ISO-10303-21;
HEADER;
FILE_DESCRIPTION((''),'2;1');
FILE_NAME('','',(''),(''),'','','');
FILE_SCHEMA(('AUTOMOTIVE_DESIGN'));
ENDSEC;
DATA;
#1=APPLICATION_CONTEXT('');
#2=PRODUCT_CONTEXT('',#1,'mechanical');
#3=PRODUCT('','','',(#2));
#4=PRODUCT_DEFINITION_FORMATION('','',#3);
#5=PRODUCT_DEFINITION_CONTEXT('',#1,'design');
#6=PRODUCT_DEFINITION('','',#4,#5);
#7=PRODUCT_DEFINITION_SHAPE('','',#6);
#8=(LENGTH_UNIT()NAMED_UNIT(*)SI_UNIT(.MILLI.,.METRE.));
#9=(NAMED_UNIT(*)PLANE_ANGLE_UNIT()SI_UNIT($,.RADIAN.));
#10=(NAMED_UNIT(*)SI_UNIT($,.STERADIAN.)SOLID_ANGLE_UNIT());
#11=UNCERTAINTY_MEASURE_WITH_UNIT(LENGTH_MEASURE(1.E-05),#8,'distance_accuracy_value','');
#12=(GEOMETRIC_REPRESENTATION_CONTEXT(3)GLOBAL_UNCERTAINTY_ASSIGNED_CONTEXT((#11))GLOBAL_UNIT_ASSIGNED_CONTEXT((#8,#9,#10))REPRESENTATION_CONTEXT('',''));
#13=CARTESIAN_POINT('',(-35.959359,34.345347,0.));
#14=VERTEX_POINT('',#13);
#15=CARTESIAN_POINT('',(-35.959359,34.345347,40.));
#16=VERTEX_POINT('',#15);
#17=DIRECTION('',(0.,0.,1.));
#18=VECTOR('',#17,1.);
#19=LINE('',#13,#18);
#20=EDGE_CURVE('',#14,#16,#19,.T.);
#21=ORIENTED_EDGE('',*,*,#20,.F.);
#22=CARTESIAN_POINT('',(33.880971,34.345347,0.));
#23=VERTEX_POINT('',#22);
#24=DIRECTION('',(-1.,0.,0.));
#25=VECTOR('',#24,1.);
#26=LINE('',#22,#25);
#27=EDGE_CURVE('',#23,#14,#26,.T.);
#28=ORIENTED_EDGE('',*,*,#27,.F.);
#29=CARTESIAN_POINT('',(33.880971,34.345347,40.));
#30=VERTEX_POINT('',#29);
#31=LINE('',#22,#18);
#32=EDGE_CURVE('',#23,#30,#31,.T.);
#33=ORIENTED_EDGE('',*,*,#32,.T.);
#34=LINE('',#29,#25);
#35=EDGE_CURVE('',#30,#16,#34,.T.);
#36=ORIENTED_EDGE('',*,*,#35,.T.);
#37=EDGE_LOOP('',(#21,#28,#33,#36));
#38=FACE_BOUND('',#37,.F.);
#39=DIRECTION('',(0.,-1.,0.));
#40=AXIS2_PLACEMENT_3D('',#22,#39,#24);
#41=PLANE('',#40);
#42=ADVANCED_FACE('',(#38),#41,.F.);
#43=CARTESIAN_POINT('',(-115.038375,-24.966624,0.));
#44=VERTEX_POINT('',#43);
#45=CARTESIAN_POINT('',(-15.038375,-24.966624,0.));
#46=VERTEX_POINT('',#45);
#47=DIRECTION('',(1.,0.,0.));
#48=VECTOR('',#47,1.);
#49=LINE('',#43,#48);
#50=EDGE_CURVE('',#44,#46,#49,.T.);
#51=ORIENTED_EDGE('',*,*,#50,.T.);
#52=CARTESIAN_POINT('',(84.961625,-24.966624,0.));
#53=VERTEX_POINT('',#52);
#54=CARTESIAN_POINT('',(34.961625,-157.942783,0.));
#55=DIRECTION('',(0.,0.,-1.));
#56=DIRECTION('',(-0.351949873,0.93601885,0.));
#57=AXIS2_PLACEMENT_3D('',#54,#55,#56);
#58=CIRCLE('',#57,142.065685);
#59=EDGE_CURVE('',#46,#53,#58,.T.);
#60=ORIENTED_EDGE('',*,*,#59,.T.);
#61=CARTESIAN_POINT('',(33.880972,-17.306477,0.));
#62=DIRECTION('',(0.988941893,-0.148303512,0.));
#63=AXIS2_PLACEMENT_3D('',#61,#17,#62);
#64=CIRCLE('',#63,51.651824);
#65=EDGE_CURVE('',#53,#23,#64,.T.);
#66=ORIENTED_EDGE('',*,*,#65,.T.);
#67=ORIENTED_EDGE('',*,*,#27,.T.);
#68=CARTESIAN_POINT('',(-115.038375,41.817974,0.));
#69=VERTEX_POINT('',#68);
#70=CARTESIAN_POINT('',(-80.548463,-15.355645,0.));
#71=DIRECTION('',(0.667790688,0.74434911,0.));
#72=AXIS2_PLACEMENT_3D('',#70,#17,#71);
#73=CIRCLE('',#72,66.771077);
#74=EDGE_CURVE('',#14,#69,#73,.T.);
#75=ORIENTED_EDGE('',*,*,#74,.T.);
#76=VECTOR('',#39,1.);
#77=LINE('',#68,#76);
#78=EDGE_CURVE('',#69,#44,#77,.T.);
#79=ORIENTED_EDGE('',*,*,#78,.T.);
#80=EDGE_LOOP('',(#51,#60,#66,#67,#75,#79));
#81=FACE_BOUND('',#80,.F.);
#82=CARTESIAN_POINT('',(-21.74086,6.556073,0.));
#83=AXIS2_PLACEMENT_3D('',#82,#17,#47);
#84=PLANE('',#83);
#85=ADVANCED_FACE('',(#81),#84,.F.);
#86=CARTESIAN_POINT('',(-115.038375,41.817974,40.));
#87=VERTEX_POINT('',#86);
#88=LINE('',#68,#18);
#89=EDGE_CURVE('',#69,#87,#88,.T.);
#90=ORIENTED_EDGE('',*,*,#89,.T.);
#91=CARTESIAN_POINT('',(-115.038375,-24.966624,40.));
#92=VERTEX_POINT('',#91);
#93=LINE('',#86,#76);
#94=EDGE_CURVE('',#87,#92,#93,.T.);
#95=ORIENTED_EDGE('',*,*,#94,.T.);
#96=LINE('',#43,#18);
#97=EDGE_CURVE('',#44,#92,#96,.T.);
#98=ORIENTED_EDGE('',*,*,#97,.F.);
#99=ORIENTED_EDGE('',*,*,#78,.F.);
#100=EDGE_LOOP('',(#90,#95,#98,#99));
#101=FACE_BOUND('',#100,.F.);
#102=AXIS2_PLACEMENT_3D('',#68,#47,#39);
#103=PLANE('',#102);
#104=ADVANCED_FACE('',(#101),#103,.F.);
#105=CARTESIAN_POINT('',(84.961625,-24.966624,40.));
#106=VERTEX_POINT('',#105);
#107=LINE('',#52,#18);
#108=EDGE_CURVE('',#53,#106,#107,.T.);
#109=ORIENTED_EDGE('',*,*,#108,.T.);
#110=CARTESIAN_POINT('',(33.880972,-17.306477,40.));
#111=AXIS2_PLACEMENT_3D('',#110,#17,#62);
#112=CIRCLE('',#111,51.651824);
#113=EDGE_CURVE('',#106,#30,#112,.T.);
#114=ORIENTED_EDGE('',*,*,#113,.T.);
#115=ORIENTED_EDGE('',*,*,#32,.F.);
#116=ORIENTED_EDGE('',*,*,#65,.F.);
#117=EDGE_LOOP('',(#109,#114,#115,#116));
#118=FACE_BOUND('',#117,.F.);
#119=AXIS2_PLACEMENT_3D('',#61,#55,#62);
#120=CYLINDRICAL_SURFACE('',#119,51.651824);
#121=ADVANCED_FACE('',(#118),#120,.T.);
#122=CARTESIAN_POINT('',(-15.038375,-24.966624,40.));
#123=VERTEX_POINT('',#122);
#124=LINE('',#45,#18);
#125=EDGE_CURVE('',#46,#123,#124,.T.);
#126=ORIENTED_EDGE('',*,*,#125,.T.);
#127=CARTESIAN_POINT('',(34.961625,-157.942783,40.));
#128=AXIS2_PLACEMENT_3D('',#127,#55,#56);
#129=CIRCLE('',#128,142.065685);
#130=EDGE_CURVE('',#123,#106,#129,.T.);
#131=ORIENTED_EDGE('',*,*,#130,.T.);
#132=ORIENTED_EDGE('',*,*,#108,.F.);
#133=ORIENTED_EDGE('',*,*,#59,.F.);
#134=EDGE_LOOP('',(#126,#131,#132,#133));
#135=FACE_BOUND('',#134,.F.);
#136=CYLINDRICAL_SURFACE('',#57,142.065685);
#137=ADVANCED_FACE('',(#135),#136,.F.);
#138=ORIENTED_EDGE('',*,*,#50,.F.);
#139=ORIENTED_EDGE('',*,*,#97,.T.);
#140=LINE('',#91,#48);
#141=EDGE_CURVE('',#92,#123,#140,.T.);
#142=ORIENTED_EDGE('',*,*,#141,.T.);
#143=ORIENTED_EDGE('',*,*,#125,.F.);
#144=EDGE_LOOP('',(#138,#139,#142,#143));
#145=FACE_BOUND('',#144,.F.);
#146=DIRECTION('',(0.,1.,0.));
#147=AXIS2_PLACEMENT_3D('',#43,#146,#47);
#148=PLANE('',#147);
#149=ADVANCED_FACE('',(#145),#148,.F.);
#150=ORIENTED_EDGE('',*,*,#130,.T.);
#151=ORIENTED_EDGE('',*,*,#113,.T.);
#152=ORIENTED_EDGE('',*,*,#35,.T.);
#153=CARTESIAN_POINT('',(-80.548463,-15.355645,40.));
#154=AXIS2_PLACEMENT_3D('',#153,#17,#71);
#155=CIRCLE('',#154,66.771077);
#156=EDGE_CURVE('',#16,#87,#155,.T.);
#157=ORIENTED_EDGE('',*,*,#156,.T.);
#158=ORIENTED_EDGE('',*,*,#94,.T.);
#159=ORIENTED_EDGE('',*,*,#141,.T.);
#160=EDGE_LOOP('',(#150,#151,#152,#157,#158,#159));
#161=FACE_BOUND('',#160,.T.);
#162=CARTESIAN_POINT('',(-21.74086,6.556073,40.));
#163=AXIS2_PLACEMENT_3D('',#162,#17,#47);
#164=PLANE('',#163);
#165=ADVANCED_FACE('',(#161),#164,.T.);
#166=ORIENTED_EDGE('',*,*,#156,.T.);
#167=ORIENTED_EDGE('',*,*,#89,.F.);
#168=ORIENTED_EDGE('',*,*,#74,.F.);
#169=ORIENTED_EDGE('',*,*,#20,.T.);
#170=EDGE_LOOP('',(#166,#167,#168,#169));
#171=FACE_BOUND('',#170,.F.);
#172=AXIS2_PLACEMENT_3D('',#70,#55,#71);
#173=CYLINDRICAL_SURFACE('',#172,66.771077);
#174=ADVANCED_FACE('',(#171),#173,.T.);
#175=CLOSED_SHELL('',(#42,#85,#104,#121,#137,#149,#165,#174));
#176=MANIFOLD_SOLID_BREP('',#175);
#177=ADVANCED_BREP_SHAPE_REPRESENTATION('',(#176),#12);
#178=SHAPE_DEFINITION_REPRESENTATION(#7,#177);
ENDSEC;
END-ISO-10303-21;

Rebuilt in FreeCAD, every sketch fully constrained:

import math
import FreeCAD as App
import Part
import Sketcher

V = App.Vector

doc = App.newDocument("Part")
body = doc.addObject("PartDesign::Body", "Body")

sketch1 = body.newObject("Sketcher::SketchObject", "Sketch")
sketch1.AttachmentSupport = (doc.getObject("XY_Plane"), [""])
sketch1.MapMode = "FlatFace"
sketch1.addGeometry([
    Part.LineSegment(V(-115, 42, 0), V(-115, -25, 0)),
    Part.LineSegment(V(-115, -25, 0), V(-15, -25, 0)),
    Part.ArcOfCircle(Part.Circle(V(35, -158, 0), V(0, 0, 1), 142), math.radians(69), math.radians(111)),
    Part.ArcOfCircle(Part.Circle(V(34, -17, 0), V(0, 0, 1), 52), math.radians(-9), math.radians(90)),
    Part.LineSegment(V(34, 34, 0), V(-36, 34, 0)),
    Part.ArcOfCircle(Part.Circle(V(-81, -15, 0), V(0, 0, 1), 67), math.radians(48), math.radians(121)),
], False)
sketch1.addConstraint([
    Sketcher.Constraint("Coincident", 0, 2, 1, 1),
    Sketcher.Constraint("Coincident", 1, 2, 2, 2),
    Sketcher.Constraint("Coincident", 2, 1, 3, 1),
    Sketcher.Constraint("Tangent", 3, 2, 4, 1),
    Sketcher.Constraint("Coincident", 4, 2, 5, 1),
    Sketcher.Constraint("Coincident", 5, 2, 0, 1),
    Sketcher.Constraint("Vertical", 0),
    Sketcher.Constraint("Horizontal", 1),
    Sketcher.Constraint("Horizontal", 4),
    Sketcher.Constraint("Horizontal", 1, 2, 2, 1),
    Sketcher.Constraint("DistanceX", 1, 1, 1, 2, 100.0),
    Sketcher.Constraint("DistanceX", 0, 2, 2, 3, 150.0),
    Sketcher.Constraint("DistanceY", 0, 2, 0, 1, 66.784598),
    Sketcher.Constraint("Radius", 2, 142.065685),
    Sketcher.Constraint("Radius", 3, 51.651824),
    Sketcher.Constraint("Radius", 5, 66.771077),
    Sketcher.Constraint("DistanceX", 4, 2, 4, 1, 69.84033),
    Sketcher.Constraint("DistanceX", -1, 1, 3, 2, 33.880971),
    Sketcher.Constraint("DistanceY", 2, 3, 5, 3, 142.587139),
    Sketcher.Constraint("DistanceY", 2, 3, -1, 1, 157.942783),
])
pad1 = body.newObject("PartDesign::Pad", "Pad")
pad1.Profile = sketch1
pad1.Length = 40

doc.recompute()
